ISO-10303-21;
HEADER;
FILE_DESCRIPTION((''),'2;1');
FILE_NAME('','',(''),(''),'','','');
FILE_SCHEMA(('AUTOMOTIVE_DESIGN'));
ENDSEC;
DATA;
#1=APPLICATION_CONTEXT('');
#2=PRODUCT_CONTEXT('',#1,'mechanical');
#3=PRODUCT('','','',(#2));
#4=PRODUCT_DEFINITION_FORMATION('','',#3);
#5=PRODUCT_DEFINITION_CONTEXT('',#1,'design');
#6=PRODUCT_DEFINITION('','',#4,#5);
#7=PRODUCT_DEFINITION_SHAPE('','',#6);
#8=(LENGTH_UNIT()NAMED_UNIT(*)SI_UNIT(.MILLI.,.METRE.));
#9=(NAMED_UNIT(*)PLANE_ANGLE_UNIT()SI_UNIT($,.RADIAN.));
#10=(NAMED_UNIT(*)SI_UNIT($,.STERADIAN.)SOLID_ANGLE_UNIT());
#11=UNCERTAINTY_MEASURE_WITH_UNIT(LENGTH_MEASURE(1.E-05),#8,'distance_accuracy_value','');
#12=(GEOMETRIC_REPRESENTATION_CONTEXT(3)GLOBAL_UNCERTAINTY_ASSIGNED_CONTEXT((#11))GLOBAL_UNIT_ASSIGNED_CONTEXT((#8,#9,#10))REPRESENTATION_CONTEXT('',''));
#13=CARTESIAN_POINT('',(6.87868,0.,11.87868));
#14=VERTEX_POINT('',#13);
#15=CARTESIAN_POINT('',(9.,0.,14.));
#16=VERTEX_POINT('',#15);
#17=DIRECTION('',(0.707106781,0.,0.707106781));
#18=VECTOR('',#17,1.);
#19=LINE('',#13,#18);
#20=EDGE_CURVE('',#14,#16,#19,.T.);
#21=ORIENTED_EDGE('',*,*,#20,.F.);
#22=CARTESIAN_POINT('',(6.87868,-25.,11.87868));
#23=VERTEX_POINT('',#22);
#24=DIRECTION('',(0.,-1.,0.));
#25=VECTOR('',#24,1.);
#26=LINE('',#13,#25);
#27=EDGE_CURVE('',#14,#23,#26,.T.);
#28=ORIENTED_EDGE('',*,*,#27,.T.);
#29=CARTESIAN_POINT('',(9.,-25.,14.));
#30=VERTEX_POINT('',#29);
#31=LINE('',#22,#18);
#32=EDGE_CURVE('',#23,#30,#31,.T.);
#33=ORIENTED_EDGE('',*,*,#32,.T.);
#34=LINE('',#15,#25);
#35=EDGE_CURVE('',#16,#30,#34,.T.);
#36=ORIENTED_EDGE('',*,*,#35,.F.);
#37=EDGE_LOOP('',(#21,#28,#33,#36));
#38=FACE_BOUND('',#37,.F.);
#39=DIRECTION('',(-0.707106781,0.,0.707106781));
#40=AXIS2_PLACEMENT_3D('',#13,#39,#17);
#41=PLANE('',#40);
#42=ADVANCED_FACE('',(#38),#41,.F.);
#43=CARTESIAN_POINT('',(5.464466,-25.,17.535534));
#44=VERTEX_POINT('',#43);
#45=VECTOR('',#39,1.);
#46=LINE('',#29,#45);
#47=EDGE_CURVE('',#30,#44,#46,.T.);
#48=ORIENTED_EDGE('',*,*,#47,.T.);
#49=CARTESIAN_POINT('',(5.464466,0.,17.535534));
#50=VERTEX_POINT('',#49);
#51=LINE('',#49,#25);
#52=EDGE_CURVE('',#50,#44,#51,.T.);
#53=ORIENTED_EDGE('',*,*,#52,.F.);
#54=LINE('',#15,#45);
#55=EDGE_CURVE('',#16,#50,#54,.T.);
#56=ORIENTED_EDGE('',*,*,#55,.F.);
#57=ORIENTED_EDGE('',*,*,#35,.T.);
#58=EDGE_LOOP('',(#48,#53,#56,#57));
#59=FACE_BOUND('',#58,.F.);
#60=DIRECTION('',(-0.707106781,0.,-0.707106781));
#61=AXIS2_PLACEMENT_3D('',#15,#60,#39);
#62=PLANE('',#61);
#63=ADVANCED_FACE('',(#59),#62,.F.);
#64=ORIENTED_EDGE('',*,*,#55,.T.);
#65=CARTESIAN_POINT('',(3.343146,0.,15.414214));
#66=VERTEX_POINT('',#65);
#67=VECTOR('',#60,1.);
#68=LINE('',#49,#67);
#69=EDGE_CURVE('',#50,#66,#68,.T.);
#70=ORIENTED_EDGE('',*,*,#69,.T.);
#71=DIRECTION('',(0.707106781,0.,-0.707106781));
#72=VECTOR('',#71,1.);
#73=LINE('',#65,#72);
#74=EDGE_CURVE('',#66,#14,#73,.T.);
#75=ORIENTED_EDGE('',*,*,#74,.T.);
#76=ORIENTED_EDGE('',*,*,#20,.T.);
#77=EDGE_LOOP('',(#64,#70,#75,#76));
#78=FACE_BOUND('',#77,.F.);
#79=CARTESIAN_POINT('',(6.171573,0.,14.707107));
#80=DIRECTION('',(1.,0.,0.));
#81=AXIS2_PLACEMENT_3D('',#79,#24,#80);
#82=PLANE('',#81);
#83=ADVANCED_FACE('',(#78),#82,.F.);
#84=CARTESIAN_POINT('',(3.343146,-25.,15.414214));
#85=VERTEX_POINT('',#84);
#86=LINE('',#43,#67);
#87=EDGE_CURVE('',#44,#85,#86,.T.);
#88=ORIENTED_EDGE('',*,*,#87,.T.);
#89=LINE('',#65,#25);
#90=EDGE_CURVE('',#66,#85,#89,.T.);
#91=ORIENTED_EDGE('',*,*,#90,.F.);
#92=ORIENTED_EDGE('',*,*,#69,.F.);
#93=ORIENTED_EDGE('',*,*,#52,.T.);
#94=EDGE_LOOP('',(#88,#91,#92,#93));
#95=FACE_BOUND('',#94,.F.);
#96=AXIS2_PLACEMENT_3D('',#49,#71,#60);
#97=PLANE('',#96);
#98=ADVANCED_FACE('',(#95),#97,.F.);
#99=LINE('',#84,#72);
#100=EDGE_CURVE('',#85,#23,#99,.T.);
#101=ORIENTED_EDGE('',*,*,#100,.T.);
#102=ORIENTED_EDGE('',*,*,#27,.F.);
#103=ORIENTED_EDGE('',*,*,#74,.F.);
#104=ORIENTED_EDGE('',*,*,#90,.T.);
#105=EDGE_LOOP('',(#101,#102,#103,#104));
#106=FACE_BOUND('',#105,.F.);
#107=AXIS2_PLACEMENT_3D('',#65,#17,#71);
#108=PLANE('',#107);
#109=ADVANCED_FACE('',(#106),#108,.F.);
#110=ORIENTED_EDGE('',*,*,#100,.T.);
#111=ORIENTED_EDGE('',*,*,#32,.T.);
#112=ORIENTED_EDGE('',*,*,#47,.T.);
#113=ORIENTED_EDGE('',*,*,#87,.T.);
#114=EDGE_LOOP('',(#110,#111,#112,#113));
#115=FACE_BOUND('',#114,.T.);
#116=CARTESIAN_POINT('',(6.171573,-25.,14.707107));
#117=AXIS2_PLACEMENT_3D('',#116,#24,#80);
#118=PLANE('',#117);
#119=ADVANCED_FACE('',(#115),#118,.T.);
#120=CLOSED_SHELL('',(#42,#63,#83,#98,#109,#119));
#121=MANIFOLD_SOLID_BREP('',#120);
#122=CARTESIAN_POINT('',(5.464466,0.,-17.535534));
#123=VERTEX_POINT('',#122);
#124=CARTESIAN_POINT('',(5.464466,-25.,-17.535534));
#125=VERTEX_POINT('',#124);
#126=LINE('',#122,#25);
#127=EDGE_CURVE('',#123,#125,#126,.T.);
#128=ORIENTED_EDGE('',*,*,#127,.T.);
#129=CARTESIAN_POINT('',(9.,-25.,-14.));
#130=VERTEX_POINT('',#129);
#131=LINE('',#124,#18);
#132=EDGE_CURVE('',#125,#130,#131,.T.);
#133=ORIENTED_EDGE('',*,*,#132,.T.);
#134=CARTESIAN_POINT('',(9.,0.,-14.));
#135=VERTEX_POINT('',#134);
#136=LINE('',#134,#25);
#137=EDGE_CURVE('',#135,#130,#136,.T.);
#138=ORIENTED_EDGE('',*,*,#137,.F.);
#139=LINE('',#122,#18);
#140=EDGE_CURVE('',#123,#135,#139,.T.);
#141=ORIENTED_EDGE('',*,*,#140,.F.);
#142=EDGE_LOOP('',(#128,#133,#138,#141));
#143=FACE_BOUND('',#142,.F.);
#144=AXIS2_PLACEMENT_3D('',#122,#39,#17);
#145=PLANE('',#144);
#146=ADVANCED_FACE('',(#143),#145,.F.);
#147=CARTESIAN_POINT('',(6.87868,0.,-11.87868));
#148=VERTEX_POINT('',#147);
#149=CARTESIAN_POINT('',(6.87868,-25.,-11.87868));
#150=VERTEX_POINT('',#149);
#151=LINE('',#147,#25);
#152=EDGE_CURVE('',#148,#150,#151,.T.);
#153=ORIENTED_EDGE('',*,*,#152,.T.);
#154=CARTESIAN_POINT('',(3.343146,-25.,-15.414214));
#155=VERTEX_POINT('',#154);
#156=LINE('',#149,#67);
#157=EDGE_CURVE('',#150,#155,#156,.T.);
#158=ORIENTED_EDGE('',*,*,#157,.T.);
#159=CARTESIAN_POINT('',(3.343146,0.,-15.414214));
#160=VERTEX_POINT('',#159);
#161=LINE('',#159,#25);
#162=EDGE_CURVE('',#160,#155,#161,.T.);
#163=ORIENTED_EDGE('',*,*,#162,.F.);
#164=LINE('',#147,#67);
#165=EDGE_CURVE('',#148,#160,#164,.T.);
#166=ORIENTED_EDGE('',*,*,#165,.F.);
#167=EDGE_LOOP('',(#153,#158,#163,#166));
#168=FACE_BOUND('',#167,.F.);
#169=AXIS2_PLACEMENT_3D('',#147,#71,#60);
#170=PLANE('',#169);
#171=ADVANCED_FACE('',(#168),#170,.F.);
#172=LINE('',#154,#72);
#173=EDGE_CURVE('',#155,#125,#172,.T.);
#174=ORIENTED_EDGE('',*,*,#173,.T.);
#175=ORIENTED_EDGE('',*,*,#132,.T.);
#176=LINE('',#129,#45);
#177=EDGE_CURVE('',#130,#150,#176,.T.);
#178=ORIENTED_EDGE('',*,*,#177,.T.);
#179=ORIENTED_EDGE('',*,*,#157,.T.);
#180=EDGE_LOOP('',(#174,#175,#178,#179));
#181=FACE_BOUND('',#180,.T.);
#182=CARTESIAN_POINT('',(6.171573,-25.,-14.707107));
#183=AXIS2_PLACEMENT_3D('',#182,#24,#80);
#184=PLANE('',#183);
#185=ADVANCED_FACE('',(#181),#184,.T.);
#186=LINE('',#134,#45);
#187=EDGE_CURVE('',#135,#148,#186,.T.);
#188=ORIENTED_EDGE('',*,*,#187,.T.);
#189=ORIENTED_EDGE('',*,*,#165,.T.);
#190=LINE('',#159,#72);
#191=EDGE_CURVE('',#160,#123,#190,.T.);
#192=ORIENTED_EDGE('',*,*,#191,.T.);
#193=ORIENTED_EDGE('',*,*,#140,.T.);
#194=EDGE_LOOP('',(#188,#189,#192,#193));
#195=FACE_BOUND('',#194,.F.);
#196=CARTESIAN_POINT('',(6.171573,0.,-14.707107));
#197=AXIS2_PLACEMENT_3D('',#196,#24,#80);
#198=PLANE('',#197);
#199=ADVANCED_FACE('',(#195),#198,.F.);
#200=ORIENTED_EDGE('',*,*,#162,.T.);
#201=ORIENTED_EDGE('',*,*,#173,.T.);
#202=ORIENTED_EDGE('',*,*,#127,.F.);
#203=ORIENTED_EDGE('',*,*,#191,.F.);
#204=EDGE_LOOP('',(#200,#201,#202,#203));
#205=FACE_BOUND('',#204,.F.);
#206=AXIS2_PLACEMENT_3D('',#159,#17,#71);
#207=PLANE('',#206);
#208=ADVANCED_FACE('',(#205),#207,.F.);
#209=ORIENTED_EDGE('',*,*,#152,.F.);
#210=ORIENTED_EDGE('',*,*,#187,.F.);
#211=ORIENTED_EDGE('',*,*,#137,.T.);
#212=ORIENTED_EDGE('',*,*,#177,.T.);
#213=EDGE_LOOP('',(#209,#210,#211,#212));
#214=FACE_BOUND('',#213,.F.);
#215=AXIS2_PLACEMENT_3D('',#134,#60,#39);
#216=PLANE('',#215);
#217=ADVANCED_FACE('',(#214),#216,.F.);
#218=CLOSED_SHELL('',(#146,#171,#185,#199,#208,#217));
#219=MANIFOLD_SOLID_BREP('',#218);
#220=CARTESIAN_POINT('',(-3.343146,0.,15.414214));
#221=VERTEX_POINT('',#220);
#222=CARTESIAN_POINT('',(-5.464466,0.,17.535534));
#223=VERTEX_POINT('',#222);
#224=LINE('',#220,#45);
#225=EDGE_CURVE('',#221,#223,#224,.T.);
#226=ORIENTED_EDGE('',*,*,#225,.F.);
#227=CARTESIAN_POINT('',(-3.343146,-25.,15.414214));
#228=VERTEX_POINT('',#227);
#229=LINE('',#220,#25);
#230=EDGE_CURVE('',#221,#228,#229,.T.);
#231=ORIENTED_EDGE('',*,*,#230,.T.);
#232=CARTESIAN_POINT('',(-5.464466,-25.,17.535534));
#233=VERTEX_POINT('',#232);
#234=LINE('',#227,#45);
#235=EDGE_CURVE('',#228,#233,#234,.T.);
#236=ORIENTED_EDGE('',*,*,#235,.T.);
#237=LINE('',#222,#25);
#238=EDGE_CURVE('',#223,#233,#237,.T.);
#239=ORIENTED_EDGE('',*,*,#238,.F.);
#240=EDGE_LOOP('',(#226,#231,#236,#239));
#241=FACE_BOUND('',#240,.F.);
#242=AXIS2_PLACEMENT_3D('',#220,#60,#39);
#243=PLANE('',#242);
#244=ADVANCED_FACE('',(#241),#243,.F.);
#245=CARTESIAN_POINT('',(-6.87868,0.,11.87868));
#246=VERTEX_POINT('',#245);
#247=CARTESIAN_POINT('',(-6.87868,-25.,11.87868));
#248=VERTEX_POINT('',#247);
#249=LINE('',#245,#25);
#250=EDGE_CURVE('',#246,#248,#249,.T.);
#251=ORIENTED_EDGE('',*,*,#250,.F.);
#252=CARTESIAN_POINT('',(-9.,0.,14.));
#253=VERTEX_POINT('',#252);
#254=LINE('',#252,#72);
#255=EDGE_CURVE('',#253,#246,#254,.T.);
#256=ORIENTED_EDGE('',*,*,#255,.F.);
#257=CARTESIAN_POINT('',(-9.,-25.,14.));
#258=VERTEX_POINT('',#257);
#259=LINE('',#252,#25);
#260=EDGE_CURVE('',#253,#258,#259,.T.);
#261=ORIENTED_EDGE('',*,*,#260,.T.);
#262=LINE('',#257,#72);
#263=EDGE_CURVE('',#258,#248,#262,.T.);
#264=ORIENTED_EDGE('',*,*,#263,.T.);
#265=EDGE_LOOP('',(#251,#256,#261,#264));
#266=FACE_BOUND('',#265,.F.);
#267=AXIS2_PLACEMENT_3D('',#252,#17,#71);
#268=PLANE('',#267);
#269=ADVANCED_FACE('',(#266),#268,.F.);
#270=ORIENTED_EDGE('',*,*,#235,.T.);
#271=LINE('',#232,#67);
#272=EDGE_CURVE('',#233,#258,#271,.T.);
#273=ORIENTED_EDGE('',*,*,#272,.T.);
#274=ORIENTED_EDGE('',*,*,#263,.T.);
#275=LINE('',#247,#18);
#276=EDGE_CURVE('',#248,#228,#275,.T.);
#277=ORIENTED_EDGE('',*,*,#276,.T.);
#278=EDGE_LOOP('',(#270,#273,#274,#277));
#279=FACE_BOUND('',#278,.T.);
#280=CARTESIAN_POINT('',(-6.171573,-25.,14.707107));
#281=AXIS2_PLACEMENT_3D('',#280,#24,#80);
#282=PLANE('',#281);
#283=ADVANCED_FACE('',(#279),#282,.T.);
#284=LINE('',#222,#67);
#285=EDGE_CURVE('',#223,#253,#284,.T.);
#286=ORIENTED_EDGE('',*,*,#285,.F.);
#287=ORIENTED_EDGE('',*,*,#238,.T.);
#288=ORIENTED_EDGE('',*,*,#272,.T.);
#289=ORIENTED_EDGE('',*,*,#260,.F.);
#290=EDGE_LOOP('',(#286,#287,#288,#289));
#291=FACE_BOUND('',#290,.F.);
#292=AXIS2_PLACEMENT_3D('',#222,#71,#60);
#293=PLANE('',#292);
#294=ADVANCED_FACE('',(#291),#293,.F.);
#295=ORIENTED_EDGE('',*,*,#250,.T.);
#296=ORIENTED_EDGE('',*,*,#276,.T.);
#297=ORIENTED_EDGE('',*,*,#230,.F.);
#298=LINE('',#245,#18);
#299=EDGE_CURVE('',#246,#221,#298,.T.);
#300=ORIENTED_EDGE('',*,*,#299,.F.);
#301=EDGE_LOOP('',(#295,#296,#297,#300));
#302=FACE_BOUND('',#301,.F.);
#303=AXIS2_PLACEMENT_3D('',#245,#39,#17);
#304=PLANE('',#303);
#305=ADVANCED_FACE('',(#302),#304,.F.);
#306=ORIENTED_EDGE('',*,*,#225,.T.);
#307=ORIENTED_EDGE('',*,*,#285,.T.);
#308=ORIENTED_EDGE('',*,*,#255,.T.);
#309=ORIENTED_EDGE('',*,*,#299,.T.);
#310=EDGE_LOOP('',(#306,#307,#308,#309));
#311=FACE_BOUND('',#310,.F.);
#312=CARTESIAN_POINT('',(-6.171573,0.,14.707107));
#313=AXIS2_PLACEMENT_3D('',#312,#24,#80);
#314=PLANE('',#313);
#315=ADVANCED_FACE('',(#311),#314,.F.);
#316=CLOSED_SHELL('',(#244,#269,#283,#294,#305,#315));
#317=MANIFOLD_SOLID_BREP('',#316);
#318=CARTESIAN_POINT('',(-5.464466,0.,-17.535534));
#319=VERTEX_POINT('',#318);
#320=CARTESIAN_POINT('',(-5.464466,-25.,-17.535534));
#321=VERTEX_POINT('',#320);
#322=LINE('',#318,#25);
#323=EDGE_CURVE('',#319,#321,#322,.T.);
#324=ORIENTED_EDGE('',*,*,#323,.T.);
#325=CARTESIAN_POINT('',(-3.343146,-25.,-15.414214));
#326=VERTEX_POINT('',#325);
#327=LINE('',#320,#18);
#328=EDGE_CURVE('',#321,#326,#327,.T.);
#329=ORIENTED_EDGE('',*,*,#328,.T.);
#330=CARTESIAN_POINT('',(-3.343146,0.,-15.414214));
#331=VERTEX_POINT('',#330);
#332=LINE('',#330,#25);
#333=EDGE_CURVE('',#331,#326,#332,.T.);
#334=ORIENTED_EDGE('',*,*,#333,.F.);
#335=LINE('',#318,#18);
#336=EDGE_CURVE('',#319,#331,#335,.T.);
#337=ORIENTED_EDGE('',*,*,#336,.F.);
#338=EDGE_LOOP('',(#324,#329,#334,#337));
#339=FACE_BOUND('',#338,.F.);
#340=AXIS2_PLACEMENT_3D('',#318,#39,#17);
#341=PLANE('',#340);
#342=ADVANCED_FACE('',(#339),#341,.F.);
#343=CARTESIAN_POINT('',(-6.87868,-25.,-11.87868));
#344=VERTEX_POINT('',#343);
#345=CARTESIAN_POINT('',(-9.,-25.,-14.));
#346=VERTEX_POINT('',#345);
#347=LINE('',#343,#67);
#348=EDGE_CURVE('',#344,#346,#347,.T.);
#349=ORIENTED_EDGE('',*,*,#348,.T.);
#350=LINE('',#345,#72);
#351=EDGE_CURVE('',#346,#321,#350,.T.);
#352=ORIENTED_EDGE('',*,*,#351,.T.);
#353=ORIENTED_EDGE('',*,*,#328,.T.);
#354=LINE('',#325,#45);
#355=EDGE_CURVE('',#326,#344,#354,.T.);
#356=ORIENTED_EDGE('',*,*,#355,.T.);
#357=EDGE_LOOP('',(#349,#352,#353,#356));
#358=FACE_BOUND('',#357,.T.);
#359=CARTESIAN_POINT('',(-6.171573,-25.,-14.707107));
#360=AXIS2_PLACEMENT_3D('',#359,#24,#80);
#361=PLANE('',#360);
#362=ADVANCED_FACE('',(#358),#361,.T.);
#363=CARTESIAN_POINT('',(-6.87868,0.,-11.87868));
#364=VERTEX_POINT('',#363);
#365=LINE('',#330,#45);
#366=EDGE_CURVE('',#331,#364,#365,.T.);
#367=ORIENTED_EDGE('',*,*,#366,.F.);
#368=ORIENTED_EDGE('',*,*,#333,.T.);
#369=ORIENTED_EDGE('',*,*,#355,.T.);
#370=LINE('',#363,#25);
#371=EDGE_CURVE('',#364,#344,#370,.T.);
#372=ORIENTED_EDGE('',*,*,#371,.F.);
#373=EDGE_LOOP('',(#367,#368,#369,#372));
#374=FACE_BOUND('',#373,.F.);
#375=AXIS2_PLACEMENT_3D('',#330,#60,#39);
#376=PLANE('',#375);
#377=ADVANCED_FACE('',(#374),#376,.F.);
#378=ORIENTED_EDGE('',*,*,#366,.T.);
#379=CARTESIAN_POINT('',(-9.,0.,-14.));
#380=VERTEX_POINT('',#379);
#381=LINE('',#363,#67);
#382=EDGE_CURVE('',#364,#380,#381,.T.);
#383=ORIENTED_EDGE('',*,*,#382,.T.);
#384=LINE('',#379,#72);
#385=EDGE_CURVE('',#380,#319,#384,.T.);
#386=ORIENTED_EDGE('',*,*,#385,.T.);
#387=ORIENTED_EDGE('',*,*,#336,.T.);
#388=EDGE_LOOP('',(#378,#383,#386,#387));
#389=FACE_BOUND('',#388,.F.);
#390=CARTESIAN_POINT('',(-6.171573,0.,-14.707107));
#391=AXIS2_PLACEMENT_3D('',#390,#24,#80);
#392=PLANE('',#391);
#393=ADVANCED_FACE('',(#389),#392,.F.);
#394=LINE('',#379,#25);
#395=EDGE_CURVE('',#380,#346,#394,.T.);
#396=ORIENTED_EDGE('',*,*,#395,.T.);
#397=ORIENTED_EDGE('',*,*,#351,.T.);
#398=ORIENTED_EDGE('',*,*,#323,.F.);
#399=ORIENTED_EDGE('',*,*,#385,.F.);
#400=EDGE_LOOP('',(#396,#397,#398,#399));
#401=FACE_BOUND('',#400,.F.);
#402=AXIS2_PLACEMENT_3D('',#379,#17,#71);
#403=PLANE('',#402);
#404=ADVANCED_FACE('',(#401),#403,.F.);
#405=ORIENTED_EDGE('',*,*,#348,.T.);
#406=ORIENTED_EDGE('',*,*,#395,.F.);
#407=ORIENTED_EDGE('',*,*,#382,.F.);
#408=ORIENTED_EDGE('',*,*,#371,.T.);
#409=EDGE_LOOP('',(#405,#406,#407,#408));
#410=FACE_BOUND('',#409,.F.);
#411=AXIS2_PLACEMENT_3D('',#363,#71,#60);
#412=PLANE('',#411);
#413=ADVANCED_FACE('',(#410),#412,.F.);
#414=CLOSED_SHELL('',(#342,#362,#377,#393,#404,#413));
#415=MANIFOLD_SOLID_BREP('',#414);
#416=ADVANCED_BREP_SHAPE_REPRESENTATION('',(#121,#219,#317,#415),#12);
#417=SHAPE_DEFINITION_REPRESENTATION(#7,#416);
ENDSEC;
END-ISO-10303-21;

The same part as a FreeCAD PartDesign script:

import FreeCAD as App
import Part
import Sketcher

V = App.Vector

doc = App.newDocument("Part")
body = doc.addObject("PartDesign::Body", "Body")
body.AllowCompound = True

# Sketch on XZ plane
sketch1 = body.newObject("Sketcher::SketchObject", "Sketch")
sketch1.AttachmentSupport = (doc.getObject("XZ_Plane"), [""])
sketch1.MapMode = "FlatFace"
sketch1.addGeometry(Part.LineSegment(V(-6.87868, -11.87868, 0), V(-9, -14, 0)), False)
sketch1.addGeometry(Part.LineSegment(V(-9, -14, 0), V(-5.464466, -17.535534, 0)), False)
sketch1.addGeometry(Part.LineSegment(V(-5.464466, -17.535534, 0), V(-3.343146, -15.414214, 0)), False)
sketch1.addGeometry(Part.LineSegment(V(-3.343146, -15.414214, 0), V(-6.87868, -11.87868, 0)), False)
sketch1.addGeometry(Part.LineSegment(V(5.464466, -17.535534, 0), V(9, -14, 0)), False)
sketch1.addGeometry(Part.LineSegment(V(9, -14, 0), V(6.87868, -11.87868, 0)), False)
sketch1.addGeometry(Part.LineSegment(V(6.87868, -11.87868, 0), V(3.343146, -15.414214, 0)), False)
sketch1.addGeometry(Part.LineSegment(V(3.343146, -15.414214, 0), V(5.464466, -17.535534, 0)), False)
sketch1.addGeometry(Part.LineSegment(V(9, 14, 0), V(5.464466, 17.535534, 0)), False)
sketch1.addGeometry(Part.LineSegment(V(5.464466, 17.535534, 0), V(3.343146, 15.414214, 0)), False)
sketch1.addGeometry(Part.LineSegment(V(3.343146, 15.414214, 0), V(6.87868, 11.87868, 0)), False)
sketch1.addGeometry(Part.LineSegment(V(6.87868, 11.87868, 0), V(9, 14, 0)), False)
sketch1.addGeometry(Part.LineSegment(V(-3.343146, 15.414214, 0), V(-5.464466, 17.535534, 0)), False)
sketch1.addGeometry(Part.LineSegment(V(-5.464466, 17.535534, 0), V(-9, 14, 0)), False)
sketch1.addGeometry(Part.LineSegment(V(-9, 14, 0), V(-6.87868, 11.87868, 0)), False)
sketch1.addGeometry(Part.LineSegment(V(-6.87868, 11.87868, 0), V(-3.343146, 15.414214, 0)), False)
sketch1.addConstraint(Sketcher.Constraint("Coincident", 0, 2, 1, 1))
sketch1.addConstraint(Sketcher.Constraint("Coincident", 1, 2, 2, 1))
sketch1.addConstraint(Sketcher.Constraint("Coincident", 2, 2, 3, 1))
sketch1.addConstraint(Sketcher.Constraint("Coincident", 3, 2, 0, 1))
sketch1.addConstraint(Sketcher.Constraint("Coincident", 4, 2, 5, 1))
sketch1.addConstraint(Sketcher.Constraint("Coincident", 5, 2, 6, 1))
sketch1.addConstraint(Sketcher.Constraint("Coincident", 6, 2, 7, 1))
sketch1.addConstraint(Sketcher.Constraint("Coincident", 7, 2, 4, 1))
sketch1.addConstraint(Sketcher.Constraint("Coincident", 8, 2, 9, 1))
sketch1.addConstraint(Sketcher.Constraint("Coincident", 9, 2, 10, 1))
sketch1.addConstraint(Sketcher.Constraint("Coincident", 10, 2, 11, 1))
sketch1.addConstraint(Sketcher.Constraint("Coincident", 11, 2, 8, 1))
sketch1.addConstraint(Sketcher.Constraint("Coincident", 12, 2, 13, 1))
sketch1.addConstraint(Sketcher.Constraint("Coincident", 13, 2, 14, 1))
sketch1.addConstraint(Sketcher.Constraint("Coincident", 14, 2, 15, 1))
sketch1.addConstraint(Sketcher.Constraint("Coincident", 15, 2, 12, 1))
sketch1.addConstraint(Sketcher.Constraint("Symmetric", 1, 2, 8, 2, -1, 1))
sketch1.addConstraint(Sketcher.Constraint("Symmetric", 2, 2, 9, 2, -1, 1))
sketch1.addConstraint(Sketcher.Constraint("Symmetric", 3, 2, 10, 2, -1, 1))
sketch1.addConstraint(Sketcher.Constraint("Symmetric", 0, 2, 11, 2, -1, 1))
sketch1.addConstraint(Sketcher.Constraint("Symmetric", 7, 2, 12, 2, -1, 1))
sketch1.addConstraint(Sketcher.Constraint("Symmetric", 4, 2, 13, 2, -1, 1))
sketch1.addConstraint(Sketcher.Constraint("Symmetric", 5, 2, 14, 2, -1, 1))
sketch1.addConstraint(Sketcher.Constraint("Symmetric", 6, 2, 15, 2, -1, 1))
sketch1.addConstraint(Sketcher.Constraint("Symmetric", 0, 2, 4, 2, -2))
sketch1.addConstraint(Sketcher.Constraint("Symmetric", 3, 2, 5, 2, -2))
sketch1.addConstraint(Sketcher.Constraint("Symmetric", 2, 2, 6, 2, -2))
sketch1.addConstraint(Sketcher.Constraint("Symmetric", 1, 2, 7, 2, -2))
sketch1.addConstraint(Sketcher.Constraint("Perpendicular", 0, 1))
sketch1.addConstraint(Sketcher.Constraint("Perpendicular", 1, 2))
sketch1.addConstraint(Sketcher.Constraint("Perpendicular", 2, 3))
sketch1.addConstraint(Sketcher.Constraint("Perpendicular", 3, 4))
sketch1.addConstraint(Sketcher.Constraint("Distance", 0, 3.0))
sketch1.addConstraint(Sketcher.Constraint("Distance", 1, 5.0))
sketch1.addConstraint(Sketcher.Constraint("DistanceX", 0, 2, -1, 1, 9.0))
sketch1.addConstraint(Sketcher.Constraint("DistanceY", 0, 2, -1, 1, 14.0))
pad1 = body.newObject("PartDesign::Pad", "Pad")
pad1.Profile = sketch1
pad1.Length = 25

doc.recompute()
